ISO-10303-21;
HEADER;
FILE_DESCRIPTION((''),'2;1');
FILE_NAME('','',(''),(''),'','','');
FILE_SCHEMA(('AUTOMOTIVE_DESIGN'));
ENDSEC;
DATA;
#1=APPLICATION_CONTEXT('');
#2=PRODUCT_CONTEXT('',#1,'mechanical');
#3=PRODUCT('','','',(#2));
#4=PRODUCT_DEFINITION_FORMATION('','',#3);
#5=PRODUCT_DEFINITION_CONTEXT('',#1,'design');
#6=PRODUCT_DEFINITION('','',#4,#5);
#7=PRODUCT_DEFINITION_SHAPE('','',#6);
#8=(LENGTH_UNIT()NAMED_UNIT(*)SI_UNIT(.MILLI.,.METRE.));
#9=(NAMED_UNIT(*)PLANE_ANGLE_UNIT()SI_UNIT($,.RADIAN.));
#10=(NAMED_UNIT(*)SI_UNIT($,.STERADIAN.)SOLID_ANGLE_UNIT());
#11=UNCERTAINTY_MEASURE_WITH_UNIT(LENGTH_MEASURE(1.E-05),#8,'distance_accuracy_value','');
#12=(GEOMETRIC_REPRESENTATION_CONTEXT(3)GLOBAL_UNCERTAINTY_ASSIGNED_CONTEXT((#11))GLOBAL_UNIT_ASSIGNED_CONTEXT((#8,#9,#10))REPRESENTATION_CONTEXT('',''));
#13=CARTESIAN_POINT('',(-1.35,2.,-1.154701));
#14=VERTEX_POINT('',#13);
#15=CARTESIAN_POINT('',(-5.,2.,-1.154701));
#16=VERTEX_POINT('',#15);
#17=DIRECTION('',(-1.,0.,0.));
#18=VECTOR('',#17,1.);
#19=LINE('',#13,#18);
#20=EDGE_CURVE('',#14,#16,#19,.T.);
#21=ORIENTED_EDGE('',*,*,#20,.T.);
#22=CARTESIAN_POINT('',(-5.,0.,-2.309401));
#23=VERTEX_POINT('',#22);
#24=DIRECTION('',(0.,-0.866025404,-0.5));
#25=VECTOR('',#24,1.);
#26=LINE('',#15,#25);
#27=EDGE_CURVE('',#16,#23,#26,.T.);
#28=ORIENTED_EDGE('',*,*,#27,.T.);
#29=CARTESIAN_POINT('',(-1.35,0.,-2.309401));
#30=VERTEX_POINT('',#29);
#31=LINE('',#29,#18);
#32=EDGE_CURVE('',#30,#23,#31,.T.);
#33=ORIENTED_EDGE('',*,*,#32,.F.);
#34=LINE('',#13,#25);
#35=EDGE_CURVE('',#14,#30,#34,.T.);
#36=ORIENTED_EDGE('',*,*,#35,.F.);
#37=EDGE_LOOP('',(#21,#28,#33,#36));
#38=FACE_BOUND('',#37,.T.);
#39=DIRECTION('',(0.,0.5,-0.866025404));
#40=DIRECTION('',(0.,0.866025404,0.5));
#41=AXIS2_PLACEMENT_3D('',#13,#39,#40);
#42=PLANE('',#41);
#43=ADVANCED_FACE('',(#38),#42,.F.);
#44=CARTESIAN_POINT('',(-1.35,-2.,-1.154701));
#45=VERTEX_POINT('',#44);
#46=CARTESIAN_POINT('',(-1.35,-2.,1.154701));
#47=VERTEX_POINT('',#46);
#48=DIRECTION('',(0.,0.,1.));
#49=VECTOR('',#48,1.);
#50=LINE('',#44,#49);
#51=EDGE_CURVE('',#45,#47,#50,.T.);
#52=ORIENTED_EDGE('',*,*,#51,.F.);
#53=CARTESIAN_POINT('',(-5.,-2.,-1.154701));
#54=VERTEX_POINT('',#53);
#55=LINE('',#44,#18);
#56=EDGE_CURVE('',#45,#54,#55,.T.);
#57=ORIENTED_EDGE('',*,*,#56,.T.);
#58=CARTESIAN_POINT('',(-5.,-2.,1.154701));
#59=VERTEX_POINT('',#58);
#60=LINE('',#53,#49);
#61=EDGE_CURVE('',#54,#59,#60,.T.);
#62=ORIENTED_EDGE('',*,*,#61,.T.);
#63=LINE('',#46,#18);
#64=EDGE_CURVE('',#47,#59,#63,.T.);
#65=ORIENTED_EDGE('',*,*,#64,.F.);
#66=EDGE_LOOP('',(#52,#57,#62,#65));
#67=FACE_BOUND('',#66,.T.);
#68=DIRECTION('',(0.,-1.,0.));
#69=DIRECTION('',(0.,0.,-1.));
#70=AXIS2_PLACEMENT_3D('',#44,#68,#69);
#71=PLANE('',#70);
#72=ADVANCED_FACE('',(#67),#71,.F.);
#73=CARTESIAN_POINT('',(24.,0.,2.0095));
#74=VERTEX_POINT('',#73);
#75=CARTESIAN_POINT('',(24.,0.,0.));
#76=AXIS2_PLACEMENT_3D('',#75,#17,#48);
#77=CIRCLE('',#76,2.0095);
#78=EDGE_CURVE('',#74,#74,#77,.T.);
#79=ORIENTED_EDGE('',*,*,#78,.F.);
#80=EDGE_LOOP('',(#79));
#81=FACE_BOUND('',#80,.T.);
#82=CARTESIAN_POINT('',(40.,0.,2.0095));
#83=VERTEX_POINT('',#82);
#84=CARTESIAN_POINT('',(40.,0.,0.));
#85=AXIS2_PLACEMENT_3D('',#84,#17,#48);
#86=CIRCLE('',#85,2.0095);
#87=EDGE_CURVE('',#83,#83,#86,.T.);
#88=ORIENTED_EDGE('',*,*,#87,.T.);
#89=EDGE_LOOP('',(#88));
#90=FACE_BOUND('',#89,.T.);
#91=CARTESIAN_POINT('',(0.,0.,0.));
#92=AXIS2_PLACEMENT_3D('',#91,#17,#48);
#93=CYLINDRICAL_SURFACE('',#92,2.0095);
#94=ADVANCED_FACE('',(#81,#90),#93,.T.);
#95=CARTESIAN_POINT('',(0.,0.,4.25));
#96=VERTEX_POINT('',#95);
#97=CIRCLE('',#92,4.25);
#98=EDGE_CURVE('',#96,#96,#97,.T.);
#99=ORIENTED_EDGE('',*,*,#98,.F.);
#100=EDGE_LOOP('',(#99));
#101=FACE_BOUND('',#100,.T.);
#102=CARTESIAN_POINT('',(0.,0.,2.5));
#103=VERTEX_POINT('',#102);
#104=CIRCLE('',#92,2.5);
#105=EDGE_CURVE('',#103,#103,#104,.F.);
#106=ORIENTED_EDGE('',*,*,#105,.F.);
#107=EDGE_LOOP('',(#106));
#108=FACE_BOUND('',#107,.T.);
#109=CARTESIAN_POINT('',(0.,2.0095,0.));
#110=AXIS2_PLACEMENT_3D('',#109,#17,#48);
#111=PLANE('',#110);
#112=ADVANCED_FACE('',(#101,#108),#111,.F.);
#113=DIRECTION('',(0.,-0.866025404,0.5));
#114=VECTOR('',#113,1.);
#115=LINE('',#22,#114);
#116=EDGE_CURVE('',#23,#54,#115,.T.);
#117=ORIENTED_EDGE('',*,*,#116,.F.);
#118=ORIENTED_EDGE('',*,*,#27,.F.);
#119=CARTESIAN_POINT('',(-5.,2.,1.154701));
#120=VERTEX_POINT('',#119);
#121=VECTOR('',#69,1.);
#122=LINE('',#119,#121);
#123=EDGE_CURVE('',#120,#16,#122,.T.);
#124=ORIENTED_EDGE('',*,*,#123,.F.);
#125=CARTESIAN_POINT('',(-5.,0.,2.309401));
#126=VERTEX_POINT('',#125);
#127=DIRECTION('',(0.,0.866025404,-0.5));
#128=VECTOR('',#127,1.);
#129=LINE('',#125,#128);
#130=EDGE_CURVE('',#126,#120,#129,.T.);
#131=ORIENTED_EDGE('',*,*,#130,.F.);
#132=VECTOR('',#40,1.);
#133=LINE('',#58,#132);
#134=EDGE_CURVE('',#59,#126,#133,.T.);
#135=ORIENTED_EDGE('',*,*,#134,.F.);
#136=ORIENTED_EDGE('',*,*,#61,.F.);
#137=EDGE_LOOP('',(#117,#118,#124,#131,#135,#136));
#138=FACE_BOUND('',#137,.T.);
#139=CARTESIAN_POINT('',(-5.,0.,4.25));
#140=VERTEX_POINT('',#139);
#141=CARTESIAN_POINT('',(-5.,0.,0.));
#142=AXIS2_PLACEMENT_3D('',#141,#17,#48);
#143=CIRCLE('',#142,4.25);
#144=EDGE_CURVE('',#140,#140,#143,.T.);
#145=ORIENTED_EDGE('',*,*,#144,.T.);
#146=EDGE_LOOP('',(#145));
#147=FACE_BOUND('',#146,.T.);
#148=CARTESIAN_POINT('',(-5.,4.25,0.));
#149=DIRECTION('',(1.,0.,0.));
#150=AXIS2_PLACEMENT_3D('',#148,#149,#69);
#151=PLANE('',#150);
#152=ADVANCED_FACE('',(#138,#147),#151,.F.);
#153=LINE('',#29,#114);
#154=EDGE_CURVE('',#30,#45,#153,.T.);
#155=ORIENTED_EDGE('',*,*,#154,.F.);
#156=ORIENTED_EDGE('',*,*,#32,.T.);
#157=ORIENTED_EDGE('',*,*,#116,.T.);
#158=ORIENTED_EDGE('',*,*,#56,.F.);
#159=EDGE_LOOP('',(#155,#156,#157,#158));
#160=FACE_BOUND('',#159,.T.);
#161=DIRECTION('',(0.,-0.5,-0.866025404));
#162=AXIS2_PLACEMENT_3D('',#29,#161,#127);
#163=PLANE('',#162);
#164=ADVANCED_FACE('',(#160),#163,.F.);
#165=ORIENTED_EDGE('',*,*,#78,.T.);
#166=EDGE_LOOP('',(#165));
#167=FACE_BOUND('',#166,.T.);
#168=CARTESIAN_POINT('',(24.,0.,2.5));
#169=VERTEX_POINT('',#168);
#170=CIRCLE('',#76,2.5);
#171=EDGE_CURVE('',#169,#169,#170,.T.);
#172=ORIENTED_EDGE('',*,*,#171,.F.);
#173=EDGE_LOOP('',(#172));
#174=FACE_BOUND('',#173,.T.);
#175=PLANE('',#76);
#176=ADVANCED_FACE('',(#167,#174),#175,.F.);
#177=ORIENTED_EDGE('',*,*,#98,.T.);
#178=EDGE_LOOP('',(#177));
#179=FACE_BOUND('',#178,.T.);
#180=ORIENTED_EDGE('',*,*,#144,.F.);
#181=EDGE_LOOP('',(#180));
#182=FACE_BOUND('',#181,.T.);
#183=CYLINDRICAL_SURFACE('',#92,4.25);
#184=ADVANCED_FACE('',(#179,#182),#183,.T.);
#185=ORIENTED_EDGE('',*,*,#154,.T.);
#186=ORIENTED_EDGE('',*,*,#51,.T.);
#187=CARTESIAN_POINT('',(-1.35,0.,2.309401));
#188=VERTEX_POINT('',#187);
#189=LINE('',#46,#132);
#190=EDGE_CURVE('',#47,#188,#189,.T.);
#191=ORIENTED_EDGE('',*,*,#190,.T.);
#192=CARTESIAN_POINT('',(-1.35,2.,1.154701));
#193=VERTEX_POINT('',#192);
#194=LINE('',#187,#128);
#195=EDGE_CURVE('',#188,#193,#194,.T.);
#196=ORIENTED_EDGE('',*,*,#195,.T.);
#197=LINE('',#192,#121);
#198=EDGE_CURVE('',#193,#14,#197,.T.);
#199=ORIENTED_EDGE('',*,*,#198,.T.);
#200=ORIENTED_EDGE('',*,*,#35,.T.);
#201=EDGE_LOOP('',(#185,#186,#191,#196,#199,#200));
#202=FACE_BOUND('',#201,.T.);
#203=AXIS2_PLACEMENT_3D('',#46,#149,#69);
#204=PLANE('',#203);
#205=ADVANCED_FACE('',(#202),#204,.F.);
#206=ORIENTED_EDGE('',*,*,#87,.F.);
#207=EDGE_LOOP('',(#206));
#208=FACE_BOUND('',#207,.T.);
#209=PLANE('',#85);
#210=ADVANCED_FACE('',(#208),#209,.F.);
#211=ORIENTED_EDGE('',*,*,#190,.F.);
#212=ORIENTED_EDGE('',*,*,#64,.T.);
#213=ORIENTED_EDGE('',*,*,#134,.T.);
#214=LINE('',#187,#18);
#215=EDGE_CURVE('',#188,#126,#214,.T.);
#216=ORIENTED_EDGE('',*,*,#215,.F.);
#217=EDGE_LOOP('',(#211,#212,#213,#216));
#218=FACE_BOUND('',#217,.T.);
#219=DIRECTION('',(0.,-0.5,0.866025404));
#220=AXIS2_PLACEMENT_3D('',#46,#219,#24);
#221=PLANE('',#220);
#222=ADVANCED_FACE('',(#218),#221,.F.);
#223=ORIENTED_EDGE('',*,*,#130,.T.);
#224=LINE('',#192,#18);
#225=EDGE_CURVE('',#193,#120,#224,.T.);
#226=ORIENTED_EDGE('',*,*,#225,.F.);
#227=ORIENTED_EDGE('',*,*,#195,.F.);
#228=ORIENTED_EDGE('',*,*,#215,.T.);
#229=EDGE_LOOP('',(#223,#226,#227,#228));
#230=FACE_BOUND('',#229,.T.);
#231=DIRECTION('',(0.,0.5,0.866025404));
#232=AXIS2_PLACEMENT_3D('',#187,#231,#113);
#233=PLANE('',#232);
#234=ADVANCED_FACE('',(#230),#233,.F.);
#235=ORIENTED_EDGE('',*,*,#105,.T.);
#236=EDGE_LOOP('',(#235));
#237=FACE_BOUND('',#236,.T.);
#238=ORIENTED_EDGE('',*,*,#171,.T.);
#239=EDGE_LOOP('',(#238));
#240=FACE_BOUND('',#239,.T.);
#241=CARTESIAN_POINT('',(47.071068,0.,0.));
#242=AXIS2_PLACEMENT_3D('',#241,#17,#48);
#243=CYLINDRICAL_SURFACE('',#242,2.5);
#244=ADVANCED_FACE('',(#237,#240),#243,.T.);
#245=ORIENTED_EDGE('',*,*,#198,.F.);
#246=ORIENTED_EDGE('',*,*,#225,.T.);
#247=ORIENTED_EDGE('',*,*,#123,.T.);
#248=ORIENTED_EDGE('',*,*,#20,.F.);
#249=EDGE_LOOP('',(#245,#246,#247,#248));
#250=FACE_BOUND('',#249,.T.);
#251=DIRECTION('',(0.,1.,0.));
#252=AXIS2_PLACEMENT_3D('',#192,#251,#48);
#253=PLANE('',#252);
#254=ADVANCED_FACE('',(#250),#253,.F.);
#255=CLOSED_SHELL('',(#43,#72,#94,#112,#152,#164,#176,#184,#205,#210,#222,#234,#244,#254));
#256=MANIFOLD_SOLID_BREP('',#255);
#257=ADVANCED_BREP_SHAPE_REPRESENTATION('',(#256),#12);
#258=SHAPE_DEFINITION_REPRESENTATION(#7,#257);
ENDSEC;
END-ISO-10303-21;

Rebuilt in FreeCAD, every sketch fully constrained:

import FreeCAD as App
import Part
import Sketcher
from FreeCAD import Vector
Q = App.Units.Quantity

doc = App.newDocument("Part")
params = doc.addObject("Spreadsheet::Sheet", "Params")
for row, (alias, value) in enumerate([
    ("sketch1_width", "40 mm"),
    ("sketch1_width2", "5 mm"),
    ("sketch1_height", "4.25 mm"),
    ("revolution_angle", "360 deg"),
    ("pocket1_length", "3.65 mm"),
    ("sketch3_diameter", "5 mm"),
    ("pad1_length", "24 mm"),
], start=1):
    params.set(f"A{row}", alias)
    params.set(f"B{row}", "=" + value)
    params.setAlias(f"B{row}", alias)

body = doc.addObject("PartDesign::Body", "Body")

sketch1 = body.newObject("Sketcher::SketchObject", "Sketch")
sketch1.AttachmentSupport = (doc.getObject("XY_Plane"), [""])
sketch1.MapMode = "FlatFace"
sketch1.addGeometry(Part.LineSegment(Vector(40, 0, 0), Vector(40, 2.0095, 0)), False)
sketch1.addGeometry(Part.LineSegment(Vector(40, 2.0095, 0), Vector(0, 2.0095, 0)), False)
sketch1.addGeometry(Part.LineSegment(Vector(0, 2.0095, 0), Vector(0, 4.25, 0)), False)
sketch1.addGeometry(Part.LineSegment(Vector(0, 4.25, 0), Vector(-5, 4.25, 0)), False)
sketch1.addGeometry(Part.LineSegment(Vector(-5, 4.25, 0), Vector(-5, 0, 0)), False)
sketch1.addGeometry(Part.LineSegment(Vector(-5, 0, 0), Vector(40, 0, 0)), False)
sketch1.addConstraint(Sketcher.Constraint("Coincident", 0, 2, 1, 1))
sketch1.addConstraint(Sketcher.Constraint("Coincident", 1, 2, 2, 1))
sketch1.addConstraint(Sketcher.Constraint("Coincident", 2, 2, 3, 1))
sketch1.addConstraint(Sketcher.Constraint("Coincident", 3, 2, 4, 1))
sketch1.addConstraint(Sketcher.Constraint("Coincident", 4, 2, 5, 1))
sketch1.addConstraint(Sketcher.Constraint("Coincident", 5, 2, 0, 1))
sketch1.addConstraint(Sketcher.Constraint("Vertical", 0))
sketch1.addConstraint(Sketcher.Constraint("Horizontal", 1))
sketch1.addConstraint(Sketcher.Constraint("Vertical", 2))
sketch1.addConstraint(Sketcher.Constraint("Horizontal", 3))
sketch1.addConstraint(Sketcher.Constraint("Vertical", 4))
sketch1.addConstraint(Sketcher.Constraint("Horizontal", 5))
sketch1.addConstraint(Sketcher.Constraint("PointOnObject", 1, 2, -2))
sketch1.addConstraint(Sketcher.Constraint("PointOnObject", 4, 2, -1))
sketch1.addConstraint(Sketcher.Constraint("DistanceX", 1, 2, 1, 1, 40.0))
sketch1.addConstraint(Sketcher.Constraint("DistanceX", 3, 2, 3, 1, 5.0))
sketch1.addConstraint(Sketcher.Constraint("DistanceY", 4, 2, 4, 1, 4.25))
sketch1.addConstraint(Sketcher.Constraint("DistanceY", 0, 1, 0, 2, 2.0095))
sketch1.setExpression("Constraints[14]", "Params.sketch1_width")
sketch1.setExpression("Constraints[15]", "Params.sketch1_width2")
sketch1.setExpression("Constraints[16]", "Params.sketch1_height")
revolution = body.newObject("PartDesign::Revolution", "Revolution")
revolution.Profile = sketch1
revolution.ReferenceAxis = (sketch1, ["H_Axis"])
revolution.setExpression("Angle", "Params.revolution_angle")

sketch2 = body.newObject("Sketcher::SketchObject", "Sketch001")
sketch2.AttachmentSupport = (doc.getObject("YZ_Plane"), [""])
sketch2.MapMode = "FlatFace"
sketch2.AttachmentOffset = App.Placement(Vector(0, 0, -5), App.Rotation())
sketch2.addGeometry(Part.LineSegment(Vector(0, 2.309401, 0), Vector(2, 1.154701, 0)), False)
sketch2.addGeometry(Part.LineSegment(Vector(2, 1.154701, 0), Vector(2, -1.154701, 0)), False)
sketch2.addGeometry(Part.LineSegment(Vector(2, -1.154701, 0), Vector(0, -2.309401, 0)), False)
sketch2.addGeometry(Part.LineSegment(Vector(0, -2.309401, 0), Vector(-2, -1.154701, 0)), False)
sketch2.addGeometry(Part.LineSegment(Vector(-2, -1.154701, 0), Vector(-2, 1.154701, 0)), False)
sketch2.addGeometry(Part.LineSegment(Vector(-2, 1.154701, 0), Vector(0, 2.309401, 0)), False)
sketch2.addConstraint(Sketcher.Constraint("Coincident", 0, 2, 1, 1))
sketch2.addConstraint(Sketcher.Constraint("Coincident", 1, 2, 2, 1))
sketch2.addConstraint(Sketcher.Constraint("Coincident", 2, 2, 3, 1))
sketch2.addConstraint(Sketcher.Constraint("Coincident", 3, 2, 4, 1))
sketch2.addConstraint(Sketcher.Constraint("Coincident", 4, 2, 5, 1))
sketch2.addConstraint(Sketcher.Constraint("Coincident", 5, 2, 0, 1))
sketch2.addConstraint(Sketcher.Constraint("Vertical", 1))
sketch2.addConstraint(Sketcher.Constraint("Vertical", 4))
sketch2.addConstraint(Sketcher.Constraint("Symmetric", 0, 2, 3, 2, -1, 1))
sketch2.addConstraint(Sketcher.Constraint("Symmetric", 2, 2, 5, 2, -1, 1))
sketch2.addConstraint(Sketcher.Constraint("PointOnObject", 2, 2, -2))
sketch2.addConstraint(Sketcher.Constraint("Parallel", 2, 5))
sketch2.addConstraint(Sketcher.Constraint("Horizontal", 1, 2, 3, 2))
sketch2.addConstraint(Sketcher.Constraint("Angle", 0, Q("-30 deg")))
sketch2.addConstraint(Sketcher.Constraint("DistanceX", -1, 1, 0, 2, 2.0))
sketch2.addConstraint(Sketcher.Constraint("DistanceY", 1, 2, 1, 1, 2.309401))
pocket1 = body.newObject("PartDesign::Pocket", "Pocket")
pocket1.Profile = sketch2
pocket1.setExpression("Length", "Params.pocket1_length")
pocket1.Reversed = True

sketch3 = body.newObject("Sketcher::SketchObject", "Sketch002")
sketch3.AttachmentSupport = (doc.getObject("YZ_Plane"), [""])
sketch3.MapMode = "FlatFace"
sketch3.addGeometry(Part.Circle(Vector(0, 0, 0), Vector(0, 0, 1), 2.5), False)
sketch3.addConstraint(Sketcher.Constraint("Coincident", 0, 3, -1, 1))
sketch3.addConstraint(Sketcher.Constraint("Diameter", 0, 5.0))
sketch3.setExpression("Constraints[1]", "Params.sketch3_diameter")
pad1 = body.newObject("PartDesign::Pad", "Pad")
pad1.Profile = sketch3
pad1.setExpression("Length", "Params.pad1_length")

doc.recompute()
